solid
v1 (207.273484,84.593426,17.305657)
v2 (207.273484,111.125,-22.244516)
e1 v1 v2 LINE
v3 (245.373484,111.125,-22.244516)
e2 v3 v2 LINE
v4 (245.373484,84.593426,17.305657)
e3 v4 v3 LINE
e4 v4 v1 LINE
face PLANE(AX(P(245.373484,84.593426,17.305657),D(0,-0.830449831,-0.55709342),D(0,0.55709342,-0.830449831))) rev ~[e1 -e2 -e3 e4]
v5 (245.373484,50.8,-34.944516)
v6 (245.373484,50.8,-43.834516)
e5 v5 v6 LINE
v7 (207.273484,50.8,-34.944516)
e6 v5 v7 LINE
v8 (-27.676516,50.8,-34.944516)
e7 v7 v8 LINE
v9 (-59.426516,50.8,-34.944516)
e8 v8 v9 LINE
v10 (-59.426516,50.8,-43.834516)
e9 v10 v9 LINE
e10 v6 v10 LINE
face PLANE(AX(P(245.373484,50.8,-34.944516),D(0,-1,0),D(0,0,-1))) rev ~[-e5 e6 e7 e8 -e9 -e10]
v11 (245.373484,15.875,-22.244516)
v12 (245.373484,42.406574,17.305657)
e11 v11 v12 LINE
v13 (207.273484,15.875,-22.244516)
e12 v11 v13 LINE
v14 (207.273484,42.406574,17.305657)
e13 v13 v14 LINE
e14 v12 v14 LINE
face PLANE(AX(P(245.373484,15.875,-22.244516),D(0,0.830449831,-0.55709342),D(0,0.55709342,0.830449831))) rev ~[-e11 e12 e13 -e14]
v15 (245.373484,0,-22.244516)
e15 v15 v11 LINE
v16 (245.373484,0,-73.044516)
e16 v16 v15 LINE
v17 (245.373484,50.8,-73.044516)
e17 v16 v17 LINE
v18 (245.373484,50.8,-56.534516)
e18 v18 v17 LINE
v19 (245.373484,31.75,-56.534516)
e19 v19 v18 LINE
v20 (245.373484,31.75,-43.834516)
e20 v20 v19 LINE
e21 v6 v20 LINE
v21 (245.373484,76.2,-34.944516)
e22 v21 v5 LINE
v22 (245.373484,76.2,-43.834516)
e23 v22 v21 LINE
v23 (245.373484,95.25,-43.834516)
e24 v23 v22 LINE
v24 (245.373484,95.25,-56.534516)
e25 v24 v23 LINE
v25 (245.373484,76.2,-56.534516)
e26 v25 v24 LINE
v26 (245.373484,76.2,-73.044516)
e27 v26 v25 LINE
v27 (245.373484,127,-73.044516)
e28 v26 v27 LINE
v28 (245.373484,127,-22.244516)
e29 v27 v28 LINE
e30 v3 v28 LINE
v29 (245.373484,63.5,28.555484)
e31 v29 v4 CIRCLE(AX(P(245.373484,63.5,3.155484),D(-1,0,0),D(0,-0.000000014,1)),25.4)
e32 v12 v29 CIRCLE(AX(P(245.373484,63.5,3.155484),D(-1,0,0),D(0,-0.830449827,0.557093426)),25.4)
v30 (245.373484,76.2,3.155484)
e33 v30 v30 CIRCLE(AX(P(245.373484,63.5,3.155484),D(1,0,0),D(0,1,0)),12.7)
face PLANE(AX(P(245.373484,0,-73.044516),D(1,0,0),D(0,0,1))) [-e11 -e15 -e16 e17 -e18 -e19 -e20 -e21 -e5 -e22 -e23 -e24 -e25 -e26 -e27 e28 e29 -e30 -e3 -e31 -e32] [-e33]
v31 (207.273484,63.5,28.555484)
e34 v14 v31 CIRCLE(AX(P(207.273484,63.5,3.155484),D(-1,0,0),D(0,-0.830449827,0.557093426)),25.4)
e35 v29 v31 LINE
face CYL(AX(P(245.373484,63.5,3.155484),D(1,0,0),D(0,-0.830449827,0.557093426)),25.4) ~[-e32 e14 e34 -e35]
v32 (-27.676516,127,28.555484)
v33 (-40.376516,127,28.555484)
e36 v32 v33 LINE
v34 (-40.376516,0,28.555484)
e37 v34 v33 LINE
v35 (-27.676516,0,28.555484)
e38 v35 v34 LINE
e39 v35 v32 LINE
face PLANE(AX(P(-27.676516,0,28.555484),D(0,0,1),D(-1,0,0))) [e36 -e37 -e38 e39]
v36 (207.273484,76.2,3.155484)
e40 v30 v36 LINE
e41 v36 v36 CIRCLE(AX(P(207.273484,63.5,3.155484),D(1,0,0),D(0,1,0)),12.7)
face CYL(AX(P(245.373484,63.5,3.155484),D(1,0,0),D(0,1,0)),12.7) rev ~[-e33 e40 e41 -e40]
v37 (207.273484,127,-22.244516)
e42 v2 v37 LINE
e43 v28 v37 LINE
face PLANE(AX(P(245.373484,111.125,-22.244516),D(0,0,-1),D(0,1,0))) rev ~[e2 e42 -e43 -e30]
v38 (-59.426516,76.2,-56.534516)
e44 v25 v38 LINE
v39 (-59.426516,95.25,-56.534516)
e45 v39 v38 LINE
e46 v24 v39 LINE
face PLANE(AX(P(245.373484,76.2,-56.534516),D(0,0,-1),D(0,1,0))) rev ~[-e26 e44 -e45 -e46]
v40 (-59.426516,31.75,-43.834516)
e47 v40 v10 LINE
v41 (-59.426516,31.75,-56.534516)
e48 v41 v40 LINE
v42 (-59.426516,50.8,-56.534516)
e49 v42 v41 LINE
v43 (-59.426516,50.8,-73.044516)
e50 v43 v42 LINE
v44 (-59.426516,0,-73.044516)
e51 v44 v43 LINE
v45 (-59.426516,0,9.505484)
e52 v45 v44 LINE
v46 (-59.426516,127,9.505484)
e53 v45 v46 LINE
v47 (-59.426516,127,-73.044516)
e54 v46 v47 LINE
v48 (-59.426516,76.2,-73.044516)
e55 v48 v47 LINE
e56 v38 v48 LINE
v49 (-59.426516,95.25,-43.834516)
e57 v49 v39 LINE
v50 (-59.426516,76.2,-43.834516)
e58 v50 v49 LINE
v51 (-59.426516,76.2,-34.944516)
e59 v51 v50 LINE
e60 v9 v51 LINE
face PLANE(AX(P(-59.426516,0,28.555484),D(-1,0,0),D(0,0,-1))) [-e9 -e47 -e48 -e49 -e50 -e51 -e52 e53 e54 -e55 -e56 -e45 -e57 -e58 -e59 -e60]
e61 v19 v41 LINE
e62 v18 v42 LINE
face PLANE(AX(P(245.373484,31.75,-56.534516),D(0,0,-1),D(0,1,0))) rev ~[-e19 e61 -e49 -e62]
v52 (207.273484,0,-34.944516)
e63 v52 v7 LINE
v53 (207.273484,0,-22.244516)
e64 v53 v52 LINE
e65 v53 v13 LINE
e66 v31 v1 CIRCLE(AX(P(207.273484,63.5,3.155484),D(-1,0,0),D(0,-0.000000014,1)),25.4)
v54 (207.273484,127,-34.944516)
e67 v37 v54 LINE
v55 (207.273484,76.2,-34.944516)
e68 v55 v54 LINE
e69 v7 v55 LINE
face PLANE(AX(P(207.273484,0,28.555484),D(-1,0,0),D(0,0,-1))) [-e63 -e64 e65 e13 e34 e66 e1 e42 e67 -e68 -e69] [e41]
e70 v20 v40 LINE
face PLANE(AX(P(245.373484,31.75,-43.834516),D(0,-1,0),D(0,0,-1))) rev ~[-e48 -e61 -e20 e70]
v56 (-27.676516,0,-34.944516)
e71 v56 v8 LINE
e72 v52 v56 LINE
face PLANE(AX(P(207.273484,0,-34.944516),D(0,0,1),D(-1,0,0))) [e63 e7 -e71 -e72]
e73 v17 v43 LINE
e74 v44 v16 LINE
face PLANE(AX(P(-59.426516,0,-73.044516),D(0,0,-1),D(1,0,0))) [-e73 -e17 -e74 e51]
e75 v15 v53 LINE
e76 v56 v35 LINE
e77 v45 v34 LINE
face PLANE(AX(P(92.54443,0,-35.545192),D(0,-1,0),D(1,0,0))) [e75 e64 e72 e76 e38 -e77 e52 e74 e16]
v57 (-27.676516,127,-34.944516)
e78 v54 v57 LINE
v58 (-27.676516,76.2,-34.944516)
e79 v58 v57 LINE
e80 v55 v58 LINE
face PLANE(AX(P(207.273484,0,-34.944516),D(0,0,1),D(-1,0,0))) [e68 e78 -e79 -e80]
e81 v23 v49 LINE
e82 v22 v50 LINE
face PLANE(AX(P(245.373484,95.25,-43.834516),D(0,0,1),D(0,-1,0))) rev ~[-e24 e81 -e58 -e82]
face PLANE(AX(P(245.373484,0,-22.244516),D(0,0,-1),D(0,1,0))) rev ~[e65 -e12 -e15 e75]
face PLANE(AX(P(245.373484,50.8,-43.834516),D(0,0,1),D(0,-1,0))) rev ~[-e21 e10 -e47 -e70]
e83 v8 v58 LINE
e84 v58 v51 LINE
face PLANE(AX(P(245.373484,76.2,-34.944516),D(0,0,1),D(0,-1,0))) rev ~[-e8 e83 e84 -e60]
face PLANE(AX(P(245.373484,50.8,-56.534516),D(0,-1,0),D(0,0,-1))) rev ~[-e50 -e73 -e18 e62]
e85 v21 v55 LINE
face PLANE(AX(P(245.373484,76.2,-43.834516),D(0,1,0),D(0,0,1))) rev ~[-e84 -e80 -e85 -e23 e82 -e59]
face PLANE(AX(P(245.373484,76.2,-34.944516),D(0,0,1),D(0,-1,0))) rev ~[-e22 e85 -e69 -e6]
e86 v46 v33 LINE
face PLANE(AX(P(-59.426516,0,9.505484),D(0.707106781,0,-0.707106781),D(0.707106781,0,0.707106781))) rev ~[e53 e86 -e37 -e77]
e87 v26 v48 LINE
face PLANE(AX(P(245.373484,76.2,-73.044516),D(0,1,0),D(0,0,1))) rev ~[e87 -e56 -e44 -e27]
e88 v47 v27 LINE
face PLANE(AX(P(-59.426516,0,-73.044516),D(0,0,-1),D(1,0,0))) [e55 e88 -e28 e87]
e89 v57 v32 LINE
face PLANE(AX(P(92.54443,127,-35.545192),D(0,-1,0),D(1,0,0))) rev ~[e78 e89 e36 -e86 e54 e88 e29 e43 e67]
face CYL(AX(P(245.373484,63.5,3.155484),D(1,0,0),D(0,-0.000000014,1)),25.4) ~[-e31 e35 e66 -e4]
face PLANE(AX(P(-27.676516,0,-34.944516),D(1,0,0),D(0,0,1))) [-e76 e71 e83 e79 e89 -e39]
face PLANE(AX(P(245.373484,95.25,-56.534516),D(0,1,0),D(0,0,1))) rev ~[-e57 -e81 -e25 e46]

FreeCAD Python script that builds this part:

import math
import FreeCAD as App
import Part
import Sketcher

V = App.Vector
Q = App.Units.Quantity


def add_polygon(sketch, points):
    """Adds a closed chain of lines whose ends are joined by coincident constraints."""
    first, n = sketch.GeometryCount, len(points)
    for a, b in zip(points, points[1:] + points[:1]):
        sketch.addGeometry(Part.LineSegment(App.Vector(*a, 0), App.Vector(*b, 0)), False)
    for i in range(n):
        sketch.addConstraint(Sketcher.Constraint("Coincident", first + i, 2, first + (i + 1) % n, 1))

doc = App.newDocument("Part")
params = doc.addObject("Spreadsheet::Sheet", "Params")
for row, (alias, value) in enumerate([
    ("sketch1_width", "12 in"),
    ("sketch1_height", "4 in"),
    ("sketch1_width2", "1.5 in"),
    ("sketch1_height2", "2.5 in"),
    ("sketch1_width3", "1.25 in"),
    ("pad1_length", "5 in"),
    ("sketch2_width", "0.75 in"),
    ("pocket1_length", "5 in"),
    ("sketch3_width", "1 in"),
    ("sketch3_height", "0.5 in"),
    ("sketch3_width2", "0.75 in"),
    ("sketch3_height2", "0.65 in"),
    ("sketch3_height3", "0.35 in"),
    ("sketch4_radius", "1 in"),
    ("sketch4_height", "2 in"),
    ("sketch4_width", "2.5 in"),
    ("sketch4_width2", "0.625 in"),
    ("pocket3_length", "1.5 in"),
    ("sketch5_diameter", "1 in"),
    ("pocket4_length", "1.5 in"),
], start=1):
    params.set(f"A{row}", alias)
    params.set(f"B{row}", "=" + value)
    params.setAlias(f"B{row}", alias)

body = doc.addObject("PartDesign::Body", "Body")

# Sketch on XZ plane
sketch1 = body.newObject("Sketcher::SketchObject", "Sketch")
sketch1.AttachmentSupport = (doc.getObject("XZ_Plane"), [""])
sketch1.MapMode = "FlatFace"
add_polygon(sketch1, [(-28, -35), (-28, 29), (-59, 29), (-59, -73), (245, -73), (245, 29), (207, 29), (207, -35)])  # lines 0-7
sketch1.addConstraint(Sketcher.Constraint("Vertical", 0))
sketch1.addConstraint(Sketcher.Constraint("Horizontal", 1))
sketch1.addConstraint(Sketcher.Constraint("Vertical", 2))
sketch1.addConstraint(Sketcher.Constraint("Horizontal", 3))
sketch1.addConstraint(Sketcher.Constraint("Vertical", 4))
sketch1.addConstraint(Sketcher.Constraint("Horizontal", 5))
sketch1.addConstraint(Sketcher.Constraint("Vertical", 6))
sketch1.addConstraint(Sketcher.Constraint("Horizontal", 7))
sketch1.addConstraint(Sketcher.Constraint("Horizontal", 1, 2, 4, 2))
sketch1.addConstraint(Sketcher.Constraint("DistanceX", 3, 1, 3, 2, Q("12 in")))
sketch1.addConstraint(Sketcher.Constraint("DistanceY", 2, 2, 2, 1, Q("4 in")))
sketch1.addConstraint(Sketcher.Constraint("DistanceX", 5, 2, 5, 1, Q("1.5 in")))
sketch1.addConstraint(Sketcher.Constraint("DistanceY", 0, 1, 0, 2, Q("2.5 in")))
sketch1.addConstraint(Sketcher.Constraint("DistanceX", 1, 2, 1, 1, Q("1.25 in")))
sketch1.addConstraint(Sketcher.Constraint("DistanceX", 0, 2, -1, 1, 27.676516))
sketch1.addConstraint(Sketcher.Constraint("DistanceY", -1, 1, 0, 2, 28.555484))
sketch1.setExpression("Constraints[17]", "Params.sketch1_width")
sketch1.setExpression("Constraints[18]", "Params.sketch1_height")
sketch1.setExpression("Constraints[19]", "Params.sketch1_width2")
sketch1.setExpression("Constraints[20]", "Params.sketch1_height2")
sketch1.setExpression("Constraints[21]", "Params.sketch1_width3")
pad1 = body.newObject("PartDesign::Pad", "Pad")
pad1.Profile = sketch1
pad1.setExpression("Length", "Params.pad1_length")
pad1.Reversed = True

# Sketch on XZ plane
sketch2 = body.newObject("Sketcher::SketchObject", "Sketch001")
sketch2.AttachmentSupport = (doc.getObject("XZ_Plane"), [""])
sketch2.MapMode = "FlatFace"
add_polygon(sketch2, [(-40, 29), (-59, 29), (-59, 10)])  # lines 0-2
sketch2.addConstraint(Sketcher.Constraint("Horizontal", 0))
sketch2.addConstraint(Sketcher.Constraint("Vertical", 1))
sketch2.addConstraint(Sketcher.Constraint("Equal", 0, 1))
sketch2.addConstraint(Sketcher.Constraint("DistanceX", 0, 2, 0, 1, Q("0.75 in")))
sketch2.addConstraint(Sketcher.Constraint("DistanceX", 0, 2, -1, 1, 59.426516))
sketch2.addConstraint(Sketcher.Constraint("DistanceY", -1, 1, 0, 2, 28.555484))
sketch2.setExpression("Constraints[6]", "Params.sketch2_width")
pocket1 = body.newObject("PartDesign::Pocket", "Pocket")
pocket1.Profile = sketch2
pocket1.setExpression("Length", "Params.pocket1_length")

# Sketch on YZ plane
sketch3 = body.newObject("Sketcher::SketchObject", "Sketch002")
sketch3.AttachmentSupport = (doc.getObject("YZ_Plane"), [""])
sketch3.MapMode = "FlatFace"
sketch3.AttachmentOffset = App.Placement(V(0, 0, 245.373484), App.Rotation())
add_polygon(sketch3, [(51, -73), (76, -73), (76, -57), (95, -57), (95, -44), (76, -44), (76, -35), (51, -35), (51, -44), (32, -44), (32, -57), (51, -57)])  # lines 0-11
sketch3.addConstraint(Sketcher.Constraint("Horizontal", 0))
sketch3.addConstraint(Sketcher.Constraint("Vertical", 1))
sketch3.addConstraint(Sketcher.Constraint("Horizontal", 2))
sketch3.addConstraint(Sketcher.Constraint("Vertical", 3))
sketch3.addConstraint(Sketcher.Constraint("Horizontal", 4))
sketch3.addConstraint(Sketcher.Constraint("Vertical", 5))
sketch3.addConstraint(Sketcher.Constraint("Horizontal", 6))
sketch3.addConstraint(Sketcher.Constraint("Vertical", 7))
sketch3.addConstraint(Sketcher.Constraint("Horizontal", 8))
sketch3.addConstraint(Sketcher.Constraint("Vertical", 9))
sketch3.addConstraint(Sketcher.Constraint("Horizontal", 10))
sketch3.addConstraint(Sketcher.Constraint("Vertical", 11))
sketch3.addConstraint(Sketcher.Constraint("Horizontal", 4, 2, 7, 2))
sketch3.addConstraint(Sketcher.Constraint("Horizontal", 2, 2, 9, 2))
sketch3.addConstraint(Sketcher.Constraint("Vertical", 1, 2, 4, 2))
sketch3.addConstraint(Sketcher.Constraint("Vertical", 7, 2, 10, 2))
sketch3.addConstraint(Sketcher.Constraint("Equal", 4, 8))
sketch3.addConstraint(Sketcher.Constraint("DistanceX", 0, 1, 0, 2, Q("1 in")))
sketch3.addConstraint(Sketcher.Constraint("DistanceY", 3, 1, 3, 2, Q("0.5 in")))
sketch3.addConstraint(Sketcher.Constraint("DistanceX", -1, 1, 0, 2, Q("3 in")))
sketch3.addConstraint(Sketcher.Constraint("DistanceX", 2, 1, 2, 2, Q("0.75 in")))
sketch3.addConstraint(Sketcher.Constraint("DistanceY", 1, 1, 1, 2, Q("0.65 in")))
sketch3.addConstraint(Sketcher.Constraint("DistanceY", 5, 1, 5, 2, Q("0.35 in")))
sketch3.addConstraint(Sketcher.Constraint("DistanceY", 0, 2, -1, 1, 73.044516))
sketch3.setExpression("Constraints[29]", "Params.sketch3_width")
sketch3.setExpression("Constraints[30]", "Params.sketch3_height")
sketch3.setExpression("Constraints[32]", "Params.sketch3_width2")
sketch3.setExpression("Constraints[33]", "Params.sketch3_height2")
sketch3.setExpression("Constraints[34]", "Params.sketch3_height3")
pocket2 = body.newObject("PartDesign::Pocket", "Pocket001")
pocket2.Profile = sketch3
pocket2.Type = "ThroughAll"

# Sketch on YZ plane
sketch4 = body.newObject("Sketcher::SketchObject", "Sketch003")
sketch4.AttachmentSupport = (doc.getObject("YZ_Plane"), [""])
sketch4.MapMode = "FlatFace"
sketch4.AttachmentOffset = App.Placement(V(0, 0, 245.373484), App.Rotation())
sketch4.addGeometry(Part.LineSegment(V(0, 29, 0), V(0, -22, 0)), False)
sketch4.addGeometry(Part.LineSegment(V(0, -22, 0), V(16, -22, 0)), False)
sketch4.addGeometry(Part.LineSegment(V(16, -22, 0), V(42, 17, 0)), False)
sketch4.addGeometry(Part.ArcOfCircle(Part.Circle(V(63, 3, 0), V(0, 0, 1), 25), math.radians(90), math.radians(146)), False)
sketch4.addGeometry(Part.LineSegment(V(64, 29, 0), V(0, 29, 0)), False)
sketch4.addGeometry(Part.LineSegment(V(127, 29, 0), V(64, 29, 0)), False)
sketch4.addGeometry(Part.ArcOfCircle(Part.Circle(V(64, 3, 0), V(0, 0, 1), 25), math.radians(34), math.radians(90)), False)
sketch4.addGeometry(Part.LineSegment(V(85, 17, 0), V(111, -22, 0)), False)
sketch4.addGeometry(Part.LineSegment(V(111, -22, 0), V(127, -22, 0)), False)
sketch4.addGeometry(Part.LineSegment(V(127, -22, 0), V(127, 29, 0)), False)
sketch4.addConstraint(Sketcher.Constraint("Coincident", 0, 2, 1, 1))
sketch4.addConstraint(Sketcher.Constraint("Coincident", 1, 2, 2, 1))
sketch4.addConstraint(Sketcher.Constraint("Tangent", 2, 2, 3, 2))
sketch4.addConstraint(Sketcher.Constraint("Tangent", 3, 1, 4, 1))
sketch4.addConstraint(Sketcher.Constraint("Coincident", 4, 2, 0, 1))
sketch4.addConstraint(Sketcher.Constraint("Tangent", 5, 2, 6, 2))
sketch4.addConstraint(Sketcher.Constraint("Tangent", 6, 1, 7, 1))
sketch4.addConstraint(Sketcher.Constraint("Coincident", 7, 2, 8, 1))
sketch4.addConstraint(Sketcher.Constraint("Coincident", 8, 2, 9, 1))
sketch4.addConstraint(Sketcher.Constraint("Coincident", 9, 2, 5, 1))
sketch4.addConstraint(Sketcher.Constraint("Vertical", 0))
sketch4.addConstraint(Sketcher.Constraint("Horizontal", 1))
sketch4.addConstraint(Sketcher.Constraint("Horizontal", 4))
sketch4.addConstraint(Sketcher.Constraint("Horizontal", 5))
sketch4.addConstraint(Sketcher.Constraint("Horizontal", 8))
sketch4.addConstraint(Sketcher.Constraint("Vertical", 9))
sketch4.addConstraint(Sketcher.Constraint("Coincident", 6, 3, 3, 3))
sketch4.addConstraint(Sketcher.Constraint("Equal", 3, 6))
sketch4.addConstraint(Sketcher.Constraint("PointOnObject", 0, 2, -2))
sketch4.addConstraint(Sketcher.Constraint("Horizontal", 2, 2, 6, 1))
sketch4.addConstraint(Sketcher.Constraint("Horizontal", 1, 2, 7, 2))
sketch4.addConstraint(Sketcher.Constraint("Equal", 4, 5))
sketch4.addConstraint(Sketcher.Constraint("Radius", 3, Q("1 in")))
sketch4.addConstraint(Sketcher.Constraint("DistanceY", 0, 2, 0, 1, Q("2 in")))
sketch4.addConstraint(Sketcher.Constraint("DistanceX", 4, 2, 4, 1, Q("2.5 in")))
sketch4.addConstraint(Sketcher.Constraint("DistanceX", 1, 1, 1, 2, Q("0.625 in")))
sketch4.addConstraint(Sketcher.Constraint("DistanceY", -1, 1, 3, 3, 3.155484))
sketch4.setExpression("Constraints[22]", "Params.sketch4_radius")
sketch4.setExpression("Constraints[23]", "Params.sketch4_height")
sketch4.setExpression("Constraints[24]", "Params.sketch4_width")
sketch4.setExpression("Constraints[25]", "Params.sketch4_width2")
pocket3 = body.newObject("PartDesign::Pocket", "Pocket002")
pocket3.Profile = sketch4
pocket3.setExpression("Length", "Params.pocket3_length")

# Sketch on YZ plane
sketch5 = body.newObject("Sketcher::SketchObject", "Sketch004")
sketch5.AttachmentSupport = (doc.getObject("YZ_Plane"), [""])
sketch5.MapMode = "FlatFace"
sketch5.AttachmentOffset = App.Placement(V(0, 0, 245.373484), App.Rotation())
sketch5.addGeometry(Part.Circle(V(64, 3, 0), V(0, 0, 1), 13), False)
sketch5.addConstraint(Sketcher.Constraint("Diameter", 0, Q("1 in")))
sketch5.addConstraint(Sketcher.Constraint("DistanceX", -1, 1, 0, 3, Q("2.5 in")))
sketch5.addConstraint(Sketcher.Constraint("DistanceY", -1, 1, 0, 3, 3.155484))
sketch5.setExpression("Constraints[0]", "Params.sketch5_diameter")
pocket4 = body.newObject("PartDesign::Pocket", "Pocket003")
pocket4.Profile = sketch5
pocket4.setExpression("Length", "Params.pocket4_length")

doc.recompute()
